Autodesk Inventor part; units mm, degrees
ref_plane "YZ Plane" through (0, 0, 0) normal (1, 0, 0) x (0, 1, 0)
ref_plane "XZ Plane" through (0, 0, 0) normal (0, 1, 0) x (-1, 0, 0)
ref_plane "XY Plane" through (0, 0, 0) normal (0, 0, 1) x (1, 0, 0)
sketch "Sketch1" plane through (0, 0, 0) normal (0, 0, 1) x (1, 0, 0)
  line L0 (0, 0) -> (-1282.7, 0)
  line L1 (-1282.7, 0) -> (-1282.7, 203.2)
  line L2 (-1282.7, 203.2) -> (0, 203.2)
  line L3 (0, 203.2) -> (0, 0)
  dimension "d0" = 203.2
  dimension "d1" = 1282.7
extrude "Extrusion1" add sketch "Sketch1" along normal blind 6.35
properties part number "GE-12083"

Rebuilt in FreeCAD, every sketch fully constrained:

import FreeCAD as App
import Part
import Sketcher

V = App.Vector
Q = App.Units.Quantity


def add_polygon(sketch, points):
    """Adds a closed chain of lines whose ends are joined by coincident constraints."""
    first, n = sketch.GeometryCount, len(points)
    for a, b in zip(points, points[1:] + points[:1]):
        sketch.addGeometry(Part.LineSegment(App.Vector(*a, 0), App.Vector(*b, 0)), False)
    for i in range(n):
        sketch.addConstraint(Sketcher.Constraint("Coincident", first + i, 2, first + (i + 1) % n, 1))

doc = App.newDocument("Part")
body = doc.addObject("PartDesign::Body", "Body")

sketch1 = doc.addObject("Sketcher::SketchObject", "Sketch")
body.addObject(sketch1)
sketch1.AttachmentSupport = (doc.XY_Plane, [""])
sketch1.MapMode = "FlatFace"
add_polygon(sketch1, [(-1283, 0), (0, 0), (0, 203), (-1283, 203)])
sketch1.addConstraint([
    Sketcher.Constraint("Horizontal", 0),
    Sketcher.Constraint("Vertical", 1),
    Sketcher.Constraint("Horizontal", 2),
    Sketcher.Constraint("Vertical", 3),
    Sketcher.Constraint("Coincident", 0, 2, -1, 1),
    Sketcher.Constraint("DistanceY", 1, 1, 1, 2, Q("8 in")),
    Sketcher.Constraint("DistanceX", 0, 1, 0, 2, Q("50.5 in")),
])
pad1 = doc.addObject("PartDesign::Pad", "Pad")
body.addObject(pad1)
pad1.Profile = sketch1
pad1.Length = Q("0.25 in")

doc.recompute()
